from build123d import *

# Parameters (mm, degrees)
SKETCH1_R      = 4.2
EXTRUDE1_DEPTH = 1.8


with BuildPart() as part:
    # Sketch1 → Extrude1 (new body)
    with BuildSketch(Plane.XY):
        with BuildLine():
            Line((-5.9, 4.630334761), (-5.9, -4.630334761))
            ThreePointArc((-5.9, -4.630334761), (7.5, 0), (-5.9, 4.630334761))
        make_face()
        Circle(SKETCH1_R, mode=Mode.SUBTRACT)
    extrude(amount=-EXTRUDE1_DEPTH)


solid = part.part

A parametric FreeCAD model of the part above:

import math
import FreeCAD as App
import Part
import Sketcher
from FreeCAD import Vector
Q = App.Units.Quantity

doc = App.newDocument("Part")
body = doc.addObject("PartDesign::Body", "Body")

# Sketch on XY plane
sketch1 = doc.addObject("Sketcher::SketchObject", "Sketch")
body.addObject(sketch1)
sketch1.AttachmentSupport = (doc.XY_Plane, [""])
sketch1.MapMode = "FlatFace"
sketch1.addGeometry([
    Part.LineSegment(Vector(-5.9, 4.6, 0), Vector(-5.9, -4.6, 0)),
    Part.ArcOfCircle(Part.Circle(Vector(0, 0, 0), Vector(0, 0, 1), 7.5), math.radians(-142), math.radians(142)),
    Part.Circle(Vector(0, 0, 0), Vector(0, 0, 1), 4.2),
], False)
sketch1.addConstraint([
    Sketcher.Constraint("Coincident", 0, 1, 1, 2),
    Sketcher.Constraint("Coincident", 1, 1, 0, 2),
    Sketcher.Constraint("Vertical", 0),
    Sketcher.Constraint("Coincident", 1, 3, -1, 1),
    Sketcher.Constraint("Coincident", 2, 3, -1, 1),
    Sketcher.Constraint("Diameter", 2, Q("8.4 mm")),
    Sketcher.Constraint("Radius", 1, Q("7.5 mm")),
    Sketcher.Constraint("DistanceX", 0, 1, -1, 1, Q("5.9 mm")),
])
pad1 = doc.addObject("PartDesign::Pad", "Pad")
body.addObject(pad1)
pad1.Profile = sketch1
pad1.Length = 1.8
pad1.Reversed = True

doc.recompute()
